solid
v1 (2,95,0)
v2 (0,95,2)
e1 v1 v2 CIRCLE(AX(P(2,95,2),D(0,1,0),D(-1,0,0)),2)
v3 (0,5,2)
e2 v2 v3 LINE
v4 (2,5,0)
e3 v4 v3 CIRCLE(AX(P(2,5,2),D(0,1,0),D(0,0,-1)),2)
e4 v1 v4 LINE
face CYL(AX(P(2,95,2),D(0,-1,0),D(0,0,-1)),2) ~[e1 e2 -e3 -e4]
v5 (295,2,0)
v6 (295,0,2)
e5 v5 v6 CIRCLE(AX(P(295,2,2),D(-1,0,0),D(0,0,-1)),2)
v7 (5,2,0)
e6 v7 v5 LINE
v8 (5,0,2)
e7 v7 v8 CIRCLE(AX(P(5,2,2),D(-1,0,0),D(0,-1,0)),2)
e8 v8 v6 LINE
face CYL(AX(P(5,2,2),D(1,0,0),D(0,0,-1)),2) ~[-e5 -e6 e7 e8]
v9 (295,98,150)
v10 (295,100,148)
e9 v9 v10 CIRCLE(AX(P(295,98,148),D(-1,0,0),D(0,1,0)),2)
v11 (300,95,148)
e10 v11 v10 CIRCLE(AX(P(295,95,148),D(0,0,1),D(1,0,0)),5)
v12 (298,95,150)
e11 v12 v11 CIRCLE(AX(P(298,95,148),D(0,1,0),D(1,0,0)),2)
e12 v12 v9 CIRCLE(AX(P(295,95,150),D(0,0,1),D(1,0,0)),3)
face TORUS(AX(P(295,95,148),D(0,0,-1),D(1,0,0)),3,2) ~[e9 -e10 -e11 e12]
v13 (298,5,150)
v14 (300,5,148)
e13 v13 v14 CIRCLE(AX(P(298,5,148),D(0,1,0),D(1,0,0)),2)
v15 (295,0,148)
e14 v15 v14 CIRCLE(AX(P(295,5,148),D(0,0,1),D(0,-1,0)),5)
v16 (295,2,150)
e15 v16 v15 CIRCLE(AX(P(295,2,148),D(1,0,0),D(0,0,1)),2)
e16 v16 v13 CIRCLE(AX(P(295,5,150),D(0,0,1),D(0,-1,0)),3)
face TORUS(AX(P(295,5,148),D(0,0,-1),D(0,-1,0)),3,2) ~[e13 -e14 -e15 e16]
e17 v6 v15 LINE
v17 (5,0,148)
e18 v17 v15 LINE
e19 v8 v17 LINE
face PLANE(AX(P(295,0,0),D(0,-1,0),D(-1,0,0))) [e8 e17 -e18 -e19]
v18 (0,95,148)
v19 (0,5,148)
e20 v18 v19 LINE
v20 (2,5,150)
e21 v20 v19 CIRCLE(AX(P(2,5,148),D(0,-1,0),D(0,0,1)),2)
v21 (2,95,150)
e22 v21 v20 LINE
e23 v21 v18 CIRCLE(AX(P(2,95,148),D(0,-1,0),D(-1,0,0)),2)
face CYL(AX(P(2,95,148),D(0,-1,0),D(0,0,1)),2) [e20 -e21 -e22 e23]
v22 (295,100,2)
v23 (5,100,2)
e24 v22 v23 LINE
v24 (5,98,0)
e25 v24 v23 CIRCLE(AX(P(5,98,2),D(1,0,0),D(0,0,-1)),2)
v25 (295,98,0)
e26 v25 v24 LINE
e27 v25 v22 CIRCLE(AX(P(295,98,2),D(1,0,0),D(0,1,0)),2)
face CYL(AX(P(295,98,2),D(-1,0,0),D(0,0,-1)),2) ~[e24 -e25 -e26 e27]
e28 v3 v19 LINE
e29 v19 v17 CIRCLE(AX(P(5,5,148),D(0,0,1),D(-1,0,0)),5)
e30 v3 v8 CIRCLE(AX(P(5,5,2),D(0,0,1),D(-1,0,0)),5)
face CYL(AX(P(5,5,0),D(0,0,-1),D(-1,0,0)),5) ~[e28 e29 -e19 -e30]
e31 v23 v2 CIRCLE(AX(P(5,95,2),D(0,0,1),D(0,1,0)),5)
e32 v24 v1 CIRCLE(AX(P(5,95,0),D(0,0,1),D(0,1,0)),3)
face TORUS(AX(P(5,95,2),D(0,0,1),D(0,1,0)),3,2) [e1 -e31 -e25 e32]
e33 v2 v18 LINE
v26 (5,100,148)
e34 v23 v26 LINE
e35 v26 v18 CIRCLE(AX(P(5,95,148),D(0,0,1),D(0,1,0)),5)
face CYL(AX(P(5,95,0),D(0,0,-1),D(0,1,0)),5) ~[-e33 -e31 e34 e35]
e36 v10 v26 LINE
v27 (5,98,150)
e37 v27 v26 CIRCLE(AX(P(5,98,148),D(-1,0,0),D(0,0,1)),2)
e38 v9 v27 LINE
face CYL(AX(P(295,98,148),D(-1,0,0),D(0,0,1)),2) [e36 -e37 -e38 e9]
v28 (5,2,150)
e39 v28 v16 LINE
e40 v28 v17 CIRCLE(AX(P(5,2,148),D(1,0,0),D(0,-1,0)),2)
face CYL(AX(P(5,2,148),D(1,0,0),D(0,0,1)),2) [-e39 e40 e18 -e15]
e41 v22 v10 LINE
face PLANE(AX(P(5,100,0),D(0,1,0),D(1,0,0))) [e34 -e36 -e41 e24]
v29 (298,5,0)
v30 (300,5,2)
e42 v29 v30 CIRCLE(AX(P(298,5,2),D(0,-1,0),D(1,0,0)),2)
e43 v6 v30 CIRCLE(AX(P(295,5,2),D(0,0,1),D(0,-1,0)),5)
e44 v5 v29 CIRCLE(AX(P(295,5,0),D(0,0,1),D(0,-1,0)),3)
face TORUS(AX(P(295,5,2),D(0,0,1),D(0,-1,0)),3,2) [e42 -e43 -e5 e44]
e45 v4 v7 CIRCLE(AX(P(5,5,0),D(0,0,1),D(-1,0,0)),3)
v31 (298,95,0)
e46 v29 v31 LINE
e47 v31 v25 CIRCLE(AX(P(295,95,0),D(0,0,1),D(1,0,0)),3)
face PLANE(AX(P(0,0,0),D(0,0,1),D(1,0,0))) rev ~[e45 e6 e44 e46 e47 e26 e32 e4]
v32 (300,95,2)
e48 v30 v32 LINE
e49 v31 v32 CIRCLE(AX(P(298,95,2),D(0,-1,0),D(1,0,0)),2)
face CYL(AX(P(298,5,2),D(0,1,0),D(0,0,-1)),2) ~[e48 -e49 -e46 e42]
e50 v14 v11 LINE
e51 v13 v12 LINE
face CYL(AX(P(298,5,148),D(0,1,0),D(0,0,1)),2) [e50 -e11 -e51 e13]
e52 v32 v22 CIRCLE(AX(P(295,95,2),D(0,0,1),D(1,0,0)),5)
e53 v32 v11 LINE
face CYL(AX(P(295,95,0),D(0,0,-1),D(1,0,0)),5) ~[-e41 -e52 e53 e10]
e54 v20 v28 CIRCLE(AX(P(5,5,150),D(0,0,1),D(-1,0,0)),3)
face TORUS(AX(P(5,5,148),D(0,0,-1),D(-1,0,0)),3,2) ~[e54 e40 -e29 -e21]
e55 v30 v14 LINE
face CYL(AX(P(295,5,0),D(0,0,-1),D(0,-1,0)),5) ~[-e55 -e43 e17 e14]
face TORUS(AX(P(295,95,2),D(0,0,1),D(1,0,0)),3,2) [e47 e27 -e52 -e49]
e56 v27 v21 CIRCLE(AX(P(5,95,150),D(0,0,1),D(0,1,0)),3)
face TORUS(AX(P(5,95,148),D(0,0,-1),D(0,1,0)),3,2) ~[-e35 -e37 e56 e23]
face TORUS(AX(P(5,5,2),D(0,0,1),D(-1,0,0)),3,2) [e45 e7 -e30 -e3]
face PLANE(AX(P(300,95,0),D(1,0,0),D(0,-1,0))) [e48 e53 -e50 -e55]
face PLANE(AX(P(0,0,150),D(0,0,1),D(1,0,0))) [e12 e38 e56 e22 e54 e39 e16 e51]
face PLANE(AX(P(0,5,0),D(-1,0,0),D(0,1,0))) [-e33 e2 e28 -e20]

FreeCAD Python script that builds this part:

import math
import FreeCAD as App
import Part
import Sketcher
Q = App.Units.Quantity


def edges_at(feature, points):
    """Names of the edges that pass closest to the given points."""
    edges = feature.Shape.Edges
    near = lambda p: min(range(len(edges)), key=lambda i: edges[i].distToShape(Part.Vertex(*p))[0])
    return sorted({f"Edge{near(p) + 1}" for p in points})

doc = App.newDocument("Part")
params = doc.addObject("Spreadsheet::Sheet", "Params")
for row, (alias, value) in enumerate([
    ("sketch1_radius", "5 mm"),
    ("pad1_length", "150 mm"),
    ("fillet_radius", "2 mm"),
], start=1):
    params.set(f"A{row}", alias)
    params.set(f"B{row}", "=" + value)
    params.setAlias(f"B{row}", alias)

body = doc.addObject("PartDesign::Body", "Body")

# Sketch on XY plane
sketch1 = body.newObject("Sketcher::SketchObject", "Sketch")
sketch1.AttachmentSupport = (doc.getObject("XY_Plane"), [""])
sketch1.MapMode = "FlatFace"
sketch1.addGeometry(Part.LineSegment(App.Vector(0, 95, 0), App.Vector(0, 5, 0)), False)
sketch1.addGeometry(Part.ArcOfCircle(Part.Circle(App.Vector(5, 5, 0), App.Vector(0, 0, 1), 5), math.radians(180), math.radians(270)), False)
sketch1.addGeometry(Part.LineSegment(App.Vector(5, 0, 0), App.Vector(295, 0, 0)), False)
sketch1.addGeometry(Part.ArcOfCircle(Part.Circle(App.Vector(295, 5, 0), App.Vector(0, 0, 1), 5), math.radians(-90), math.radians(0)), False)
sketch1.addGeometry(Part.LineSegment(App.Vector(300, 5, 0), App.Vector(300, 95, 0)), False)
sketch1.addGeometry(Part.ArcOfCircle(Part.Circle(App.Vector(295, 95, 0), App.Vector(0, 0, 1), 5), math.radians(0), math.radians(90)), False)
sketch1.addGeometry(Part.LineSegment(App.Vector(295, 100, 0), App.Vector(5, 100, 0)), False)
sketch1.addGeometry(Part.ArcOfCircle(Part.Circle(App.Vector(5, 95, 0), App.Vector(0, 0, 1), 5), math.radians(90), math.radians(180)), False)
sketch1.addConstraint(Sketcher.Constraint("Tangent", 0, 2, 1, 1))
sketch1.addConstraint(Sketcher.Constraint("Tangent", 1, 2, 2, 1))
sketch1.addConstraint(Sketcher.Constraint("Tangent", 2, 2, 3, 1))
sketch1.addConstraint(Sketcher.Constraint("Tangent", 3, 2, 4, 1))
sketch1.addConstraint(Sketcher.Constraint("Tangent", 4, 2, 5, 1))
sketch1.addConstraint(Sketcher.Constraint("Tangent", 5, 2, 6, 1))
sketch1.addConstraint(Sketcher.Constraint("Tangent", 6, 2, 7, 1))
sketch1.addConstraint(Sketcher.Constraint("Tangent", 7, 2, 0, 1))
sketch1.addConstraint(Sketcher.Constraint("Vertical", 0))
sketch1.addConstraint(Sketcher.Constraint("Horizontal", 2))
sketch1.addConstraint(Sketcher.Constraint("Vertical", 4))
sketch1.addConstraint(Sketcher.Constraint("Horizontal", 6))
sketch1.addConstraint(Sketcher.Constraint("Equal", 1, 3))
sketch1.addConstraint(Sketcher.Constraint("Equal", 3, 5))
sketch1.addConstraint(Sketcher.Constraint("Equal", 5, 7))
sketch1.addConstraint(Sketcher.Constraint("PointOnObject", 0, 2, -2))
sketch1.addConstraint(Sketcher.Constraint("PointOnObject", 1, 2, -1))
sketch1.addConstraint(Sketcher.Constraint("Radius", 1, Q("5 mm")))
sketch1.addConstraint(Sketcher.Constraint("DistanceX", -1, 1, 3, 2, Q("300 mm")))
sketch1.addConstraint(Sketcher.Constraint("DistanceY", -1, 1, 5, 2, Q("100 mm")))
sketch1.setExpression("Constraints[17]", "Params.sketch1_radius")
pad1 = body.newObject("PartDesign::Pad", "Pad")
pad1.Profile = sketch1
pad1.setExpression("Length", "Params.pad1_length")
doc.recompute()

fillet = body.newObject("PartDesign::Fillet", "Fillet")
fillet.Base = (pad1, edges_at(pad1, [
    (298.536, 98.535, 150),
    (150, 100, 150),
    (1.464, 98.535, 150),
    (0, 50, 150),
    (1.464, 1.464, 150),
    (150, 0, 150),
    (298.536, 1.464, 150),
    (300, 50, 150),
    (298.536, 98.535, 0),
    (150, 100, 0),
    (1.464, 98.535, 0),
    (0, 50, 0),
    (1.464, 1.464, 0),
    (150, 0, 0),
    (298.536, 1.464, 0),
    (300, 50, 0),
]))
fillet.setExpression("Radius", "Params.fillet_radius")

doc.recompute()
